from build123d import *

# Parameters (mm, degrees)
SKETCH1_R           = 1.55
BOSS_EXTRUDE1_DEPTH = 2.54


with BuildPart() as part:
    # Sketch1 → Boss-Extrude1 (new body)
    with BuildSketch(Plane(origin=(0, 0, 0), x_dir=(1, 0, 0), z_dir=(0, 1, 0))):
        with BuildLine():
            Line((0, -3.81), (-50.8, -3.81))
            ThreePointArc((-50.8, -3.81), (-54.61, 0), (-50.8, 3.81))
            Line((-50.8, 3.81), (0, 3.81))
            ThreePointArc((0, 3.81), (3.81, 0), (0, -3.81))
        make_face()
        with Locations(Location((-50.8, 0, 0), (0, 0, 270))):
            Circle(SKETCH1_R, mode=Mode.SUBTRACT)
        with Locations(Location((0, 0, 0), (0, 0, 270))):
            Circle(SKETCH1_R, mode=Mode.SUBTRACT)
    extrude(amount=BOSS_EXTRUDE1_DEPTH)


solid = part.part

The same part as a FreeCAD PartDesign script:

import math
import FreeCAD as App
import Part
import Sketcher
from FreeCAD import Vector
Q = App.Units.Quantity

doc = App.newDocument("Part")
params = doc.addObject("Spreadsheet::Sheet", "Params")
for row, (alias, value) in enumerate([
    ("sketch1_width", "2 in"),
    ("sketch1_radius", "0.15 in"),
    ("pad1_length", "0.1 in"),
], start=1):
    params.set(f"A{row}", alias)
    params.set(f"B{row}", "=" + value)
    params.setAlias(f"B{row}", alias)

body = doc.addObject("PartDesign::Body", "Body")

# Sketch on XZ plane
sketch1 = doc.addObject("Sketcher::SketchObject", "Sketch")
body.addObject(sketch1)
sketch1.AttachmentSupport = (doc.XZ_Plane, [""])
sketch1.MapMode = "FlatFace"
sketch1.addGeometry([
    Part.LineSegment(Vector(-50.8, 3.81, 0), Vector(0, 3.81, 0)),  # 0
    Part.ArcOfCircle(Part.Circle(Vector(0, 0, 0), Vector(0, 0, 1), 3.81), math.radians(-90), math.radians(90)),  # 1
    Part.LineSegment(Vector(0, -3.81, 0), Vector(-50.8, -3.81, 0)),  # 2
    Part.ArcOfCircle(Part.Circle(Vector(-50.8, 0, 0), Vector(0, 0, 1), 3.81), math.radians(90), math.radians(270)),  # 3
    Part.Circle(Vector(0, 0, 0), Vector(0, 0, 1), 1.55),  # 4
    Part.Circle(Vector(-50.8, 0, 0), Vector(0, 0, 1), 1.55),  # 5
], False)
sketch1.addConstraint([
    Sketcher.Constraint("Tangent", 0, 2, 1, 2),
    Sketcher.Constraint("Tangent", 1, 1, 2, 1),
    Sketcher.Constraint("Tangent", 2, 2, 3, 2),
    Sketcher.Constraint("Tangent", 3, 1, 0, 1),
    Sketcher.Constraint("Horizontal", 0),
    Sketcher.Constraint("Horizontal", 2),
    Sketcher.Constraint("Coincident", 1, 3, -1, 1),
    Sketcher.Constraint("Coincident", 4, 3, -1, 1),
    Sketcher.Constraint("Coincident", 5, 3, 3, 3),
    Sketcher.Constraint("Equal", 4, 5),
    Sketcher.Constraint("DistanceX", 0, 1, 0, 2, Q("2 in")),
    Sketcher.Constraint("Radius", 1, Q("0.15 in")),
    Sketcher.Constraint("Diameter", 4, 3.1),
])
sketch1.setExpression("Constraints[10]", "Params.sketch1_width")
sketch1.setExpression("Constraints[11]", "Params.sketch1_radius")
pad1 = doc.addObject("PartDesign::Pad", "Pad")
body.addObject(pad1)
pad1.Profile = sketch1
pad1.setExpression("Length", "Params.pad1_length")
pad1.Reversed = True

doc.recompute()
